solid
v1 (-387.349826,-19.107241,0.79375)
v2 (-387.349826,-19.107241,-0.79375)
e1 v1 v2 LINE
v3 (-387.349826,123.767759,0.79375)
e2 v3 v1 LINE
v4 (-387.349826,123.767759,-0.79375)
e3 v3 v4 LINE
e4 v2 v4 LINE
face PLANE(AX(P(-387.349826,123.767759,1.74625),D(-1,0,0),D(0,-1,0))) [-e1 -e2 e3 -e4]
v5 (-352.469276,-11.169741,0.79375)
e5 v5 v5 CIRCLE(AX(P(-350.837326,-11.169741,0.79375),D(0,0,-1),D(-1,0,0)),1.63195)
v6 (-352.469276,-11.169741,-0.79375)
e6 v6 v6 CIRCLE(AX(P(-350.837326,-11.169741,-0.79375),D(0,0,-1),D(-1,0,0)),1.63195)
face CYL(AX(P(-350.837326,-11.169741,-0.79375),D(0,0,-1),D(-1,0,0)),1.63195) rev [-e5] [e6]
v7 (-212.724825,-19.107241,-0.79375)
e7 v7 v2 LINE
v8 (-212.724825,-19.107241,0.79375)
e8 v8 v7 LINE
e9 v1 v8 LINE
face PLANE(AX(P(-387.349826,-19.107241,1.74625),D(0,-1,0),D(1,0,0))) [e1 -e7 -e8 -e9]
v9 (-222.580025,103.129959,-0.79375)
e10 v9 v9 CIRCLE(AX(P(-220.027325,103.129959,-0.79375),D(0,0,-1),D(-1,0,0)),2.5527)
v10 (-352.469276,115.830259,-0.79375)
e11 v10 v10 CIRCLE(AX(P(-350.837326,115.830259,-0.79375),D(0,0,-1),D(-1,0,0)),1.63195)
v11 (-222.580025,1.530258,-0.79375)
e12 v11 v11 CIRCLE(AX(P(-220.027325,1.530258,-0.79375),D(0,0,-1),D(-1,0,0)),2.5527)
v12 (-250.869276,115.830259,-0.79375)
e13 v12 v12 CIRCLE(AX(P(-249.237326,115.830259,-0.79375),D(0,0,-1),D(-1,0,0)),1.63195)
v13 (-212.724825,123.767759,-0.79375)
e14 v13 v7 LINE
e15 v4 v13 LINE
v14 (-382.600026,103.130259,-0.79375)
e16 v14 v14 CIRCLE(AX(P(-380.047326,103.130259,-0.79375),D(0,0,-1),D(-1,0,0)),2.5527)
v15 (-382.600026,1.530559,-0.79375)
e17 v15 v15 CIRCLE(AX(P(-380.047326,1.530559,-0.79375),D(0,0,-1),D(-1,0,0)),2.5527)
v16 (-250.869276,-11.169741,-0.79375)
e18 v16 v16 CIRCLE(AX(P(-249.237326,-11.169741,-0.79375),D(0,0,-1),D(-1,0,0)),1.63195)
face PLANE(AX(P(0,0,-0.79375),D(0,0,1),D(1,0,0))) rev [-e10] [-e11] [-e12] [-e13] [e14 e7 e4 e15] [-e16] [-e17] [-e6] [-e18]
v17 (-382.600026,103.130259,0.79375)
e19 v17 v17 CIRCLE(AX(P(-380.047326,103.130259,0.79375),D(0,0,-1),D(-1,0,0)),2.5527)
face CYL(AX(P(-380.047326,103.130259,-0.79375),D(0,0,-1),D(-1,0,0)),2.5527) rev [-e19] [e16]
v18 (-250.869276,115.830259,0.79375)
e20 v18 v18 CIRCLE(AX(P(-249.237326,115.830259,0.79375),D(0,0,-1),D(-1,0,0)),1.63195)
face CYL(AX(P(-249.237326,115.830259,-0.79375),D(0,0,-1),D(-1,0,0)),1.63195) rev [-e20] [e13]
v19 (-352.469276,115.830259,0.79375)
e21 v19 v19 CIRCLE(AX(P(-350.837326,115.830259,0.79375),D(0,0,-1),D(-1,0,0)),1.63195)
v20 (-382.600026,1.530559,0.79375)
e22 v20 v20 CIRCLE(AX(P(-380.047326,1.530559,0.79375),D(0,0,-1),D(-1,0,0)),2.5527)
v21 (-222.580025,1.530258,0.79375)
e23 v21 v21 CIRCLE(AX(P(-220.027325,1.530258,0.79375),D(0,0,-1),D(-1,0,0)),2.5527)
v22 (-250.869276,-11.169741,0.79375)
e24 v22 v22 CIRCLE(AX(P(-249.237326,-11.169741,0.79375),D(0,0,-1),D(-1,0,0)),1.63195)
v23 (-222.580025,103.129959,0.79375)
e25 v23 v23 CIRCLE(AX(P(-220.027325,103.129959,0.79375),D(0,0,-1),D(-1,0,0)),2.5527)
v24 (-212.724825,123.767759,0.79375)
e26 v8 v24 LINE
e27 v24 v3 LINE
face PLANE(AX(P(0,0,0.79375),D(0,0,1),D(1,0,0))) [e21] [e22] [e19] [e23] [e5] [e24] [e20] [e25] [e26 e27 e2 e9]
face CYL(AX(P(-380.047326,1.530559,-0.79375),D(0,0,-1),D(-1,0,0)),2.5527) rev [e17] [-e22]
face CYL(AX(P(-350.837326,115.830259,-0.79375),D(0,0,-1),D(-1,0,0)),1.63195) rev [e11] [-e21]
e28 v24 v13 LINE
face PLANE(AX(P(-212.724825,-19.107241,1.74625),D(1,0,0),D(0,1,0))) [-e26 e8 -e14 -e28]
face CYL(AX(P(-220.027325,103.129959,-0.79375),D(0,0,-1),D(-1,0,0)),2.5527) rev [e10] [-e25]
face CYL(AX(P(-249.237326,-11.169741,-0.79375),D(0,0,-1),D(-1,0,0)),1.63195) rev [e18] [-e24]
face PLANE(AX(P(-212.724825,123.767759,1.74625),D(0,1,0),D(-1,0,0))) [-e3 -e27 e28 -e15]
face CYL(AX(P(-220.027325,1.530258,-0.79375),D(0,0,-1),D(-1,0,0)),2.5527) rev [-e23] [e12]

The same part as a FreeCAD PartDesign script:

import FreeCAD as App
import Part
import Sketcher

V = App.Vector
Q = App.Units.Quantity

doc = App.newDocument("Part")
body = doc.addObject("PartDesign::Body", "Body")

# Sketch on XY plane
sketch1 = doc.addObject("Sketcher::SketchObject", "Sketch")
body.addObject(sketch1)
sketch1.AttachmentSupport = (doc.XY_Plane, [""])
sketch1.MapMode = "FlatFace"
sketch1.addGeometry([
    Part.LineSegment(V(-457, 305, 0), V(-457, -305, 0)),
    Part.LineSegment(V(-457, -305, 0), V(457, -305, 0)),
    Part.LineSegment(V(457, -305, 0), V(457, 305, 0)),
    Part.LineSegment(V(457, 305, 0), V(-457, 305, 0)),
], False)
sketch1.addConstraint([
    Sketcher.Constraint("Coincident", 0, 2, 1, 1),
    Sketcher.Constraint("Coincident", 1, 2, 2, 1),
    Sketcher.Constraint("Coincident", 2, 2, 3, 1),
    Sketcher.Constraint("Coincident", 3, 2, 0, 1),
    Sketcher.Constraint("Vertical", 0),
    Sketcher.Constraint("Horizontal", 1),
    Sketcher.Constraint("Vertical", 2),
    Sketcher.Constraint("Horizontal", 3),
    Sketcher.Constraint("Symmetric", 0, 2, 2, 2, -1, 1),
    Sketcher.Constraint("DistanceX", 1, 1, 1, 2, Q("36 in")),
    Sketcher.Constraint("DistanceY", 0, 2, 0, 1, Q("24 in")),
])
pad1 = doc.addObject("PartDesign::Pad", "Pad")
body.addObject(pad1)
pad1.Profile = sketch1
pad1.Length = Q("0.0625 in")
pad1.Midplane = True

# Sketch on XY plane
sketch2 = doc.addObject("Sketcher::SketchObject", "Sketch001")
body.addObject(sketch2)
sketch2.AttachmentSupport = (doc.XY_Plane, [""])
sketch2.MapMode = "FlatFace"
sketch2.AttachmentOffset = App.Placement(V(0, 0, -0.03125 * 25.4), App.Rotation())
sketch2.addGeometry([
    Part.LineSegment(V(568, 416, 0), V(568, -416, 0)),  # 0
    Part.LineSegment(V(568, -416, 0), V(-568, -416, 0)),  # 1
    Part.LineSegment(V(-568, -416, 0), V(-568, 416, 0)),  # 2
    Part.LineSegment(V(-568, 416, 0), V(568, 416, 0)),  # 3
    Part.LineSegment(V(-387, 124, 0), V(-387, -19, 0)),  # 4
    Part.LineSegment(V(-387, -19, 0), V(-213, -19, 0)),  # 5
    Part.LineSegment(V(-213, -19, 0), V(-213, 124, 0)),  # 6
    Part.LineSegment(V(-213, 124, 0), V(-387, 124, 0)),  # 7
], False)
sketch2.addConstraint([
    Sketcher.Constraint("Coincident", 0, 2, 1, 1),
    Sketcher.Constraint("Coincident", 1, 2, 2, 1),
    Sketcher.Constraint("Coincident", 2, 2, 3, 1),
    Sketcher.Constraint("Coincident", 3, 2, 0, 1),
    Sketcher.Constraint("Coincident", 4, 2, 5, 1),
    Sketcher.Constraint("Coincident", 5, 2, 6, 1),
    Sketcher.Constraint("Coincident", 6, 2, 7, 1),
    Sketcher.Constraint("Coincident", 7, 2, 4, 1),
    Sketcher.Constraint("Vertical", 0),
    Sketcher.Constraint("Horizontal", 1),
    Sketcher.Constraint("Vertical", 2),
    Sketcher.Constraint("Horizontal", 3),
    Sketcher.Constraint("Vertical", 4),
    Sketcher.Constraint("Horizontal", 5),
    Sketcher.Constraint("Vertical", 6),
    Sketcher.Constraint("Horizontal", 7),
    Sketcher.Constraint("Symmetric", 0, 2, 2, 2, -1, 1),
    Sketcher.Constraint("DistanceX", 5, 1, 5, 2, Q("6.875 in")),
    Sketcher.Constraint("DistanceY", 4, 2, 4, 1, Q("5.625 in")),
    Sketcher.Constraint("DistanceX", 1, 2, 1, 1, Q("1136.194 mm")),
    Sketcher.Constraint("DistanceY", 0, 2, 0, 1, Q("831.394 mm")),
    Sketcher.Constraint("DistanceY", 4, 2, -1, 1, Q("19.107241 mm")),
    Sketcher.Constraint("DistanceX", 4, 2, -1, 1, Q("387.349826 mm")),
])
pocket1 = doc.addObject("PartDesign::Pocket", "Pocket")
body.addObject(pocket1)
pocket1.Profile = sketch2
pocket1.Length = Q("0.1 in")
pocket1.Reversed = True

# Sketch on XY plane
sketch3 = doc.addObject("Sketcher::SketchObject", "Sketch002")
body.addObject(sketch3)
sketch3.AttachmentSupport = (doc.XY_Plane, [""])
sketch3.MapMode = "FlatFace"
sketch3.AttachmentOffset = App.Placement(V(0, 0, -0.03125 * 25.4), App.Rotation())
sketch3.addGeometry([
    Part.Circle(V(-350.8, 115.8, 0), V(0, 0, 1), 1.6),
    Part.Circle(V(-249.2, 115.8, 0), V(0, 0, 1), 1.6),
    Part.Circle(V(-249.2, -11.2, 0), V(0, 0, 1), 1.6),
    Part.Circle(V(-350.8, -11.2, 0), V(0, 0, 1), 1.6),
], False)
sketch3.addConstraint([
    Sketcher.Constraint("Equal", 0, 1),
    Sketcher.Constraint("Equal", 1, 2),
    Sketcher.Constraint("Equal", 2, 3),
    Sketcher.Constraint("Horizontal", 0, 3, 1, 3),
    Sketcher.Constraint("Horizontal", 2, 3, 3, 3),
    Sketcher.Constraint("Vertical", 1, 3, 2, 3),
    Sketcher.Constraint("Vertical", 0, 3, 3, 3),
    Sketcher.Constraint("DistanceX", 0, 3, 1, 3, Q("4 in")),
    Sketcher.Constraint("DistanceY", 2, 3, 1, 3, Q("5 in")),
    Sketcher.Constraint("Diameter", 0, Q("0.1285 in")),
    Sketcher.Constraint("DistanceY", -1, 1, 0, 3, Q("115.830259 mm")),
    Sketcher.Constraint("DistanceX", 0, 3, -1, 1, Q("350.837326 mm")),
])
doc.recompute()
hole = doc.addObject("PartDesign::Hole", "Hole")
body.addObject(hole)
hole.Profile = sketch3
hole.ThreadType = "None"
hole.Diameter = Q("0.1285 in")
hole.DepthType = "ThroughAll"
hole.Reversed = True

# Sketch on XY plane
sketch4 = doc.addObject("Sketcher::SketchObject", "Sketch003")
body.addObject(sketch4)
sketch4.AttachmentSupport = (doc.XY_Plane, [""])
sketch4.MapMode = "FlatFace"
sketch4.AttachmentOffset = App.Placement(V(0, 0, -0.03125 * 25.4), App.Rotation())
sketch4.addGeometry([
    Part.Circle(V(-220, 1.5, 0), V(0, 0, 1), 2.6),
    Part.Circle(V(-220, 103.1, 0), V(0, 0, 1), 2.6),
    Part.Circle(V(-380, 103.1, 0), V(0, 0, 1), 2.6),
    Part.Circle(V(-380, 1.5, 0), V(0, 0, 1), 2.6),
], False)
sketch4.addConstraint([
    Sketcher.Constraint("Equal", 0, 1),
    Sketcher.Constraint("Equal", 1, 2),
    Sketcher.Constraint("Equal", 2, 3),
    Sketcher.Constraint("Vertical", 0, 3, 1, 3),
    Sketcher.Constraint("Vertical", 2, 3, 3, 3),
    Sketcher.Constraint("Diameter", 0, Q("0.201 in")),
    Sketcher.Constraint("DistanceY", 0, 3, 2, 3, Q("4 in")),
    Sketcher.Constraint("DistanceX", 2, 3, 1, 3, Q("6.3 in")),
    Sketcher.Constraint("DistanceY", 0, 3, 1, 3, Q("101.599701 mm")),
    Sketcher.Constraint("DistanceY", 3, 3, 2, 3, Q("101.599701 mm")),
    Sketcher.Constraint("DistanceY", -1, 1, 0, 3, Q("1.530258 mm")),
    Sketcher.Constraint("DistanceX", 0, 3, -1, 1, Q("220.027325 mm")),
])
doc.recompute()
hole2 = doc.addObject("PartDesign::Hole", "Hole001")
body.addObject(hole2)
hole2.Profile = sketch4
hole2.ThreadType = "None"
hole2.Diameter = Q("0.201 in")
hole2.DepthType = "ThroughAll"
hole2.Reversed = True

doc.recompute()
